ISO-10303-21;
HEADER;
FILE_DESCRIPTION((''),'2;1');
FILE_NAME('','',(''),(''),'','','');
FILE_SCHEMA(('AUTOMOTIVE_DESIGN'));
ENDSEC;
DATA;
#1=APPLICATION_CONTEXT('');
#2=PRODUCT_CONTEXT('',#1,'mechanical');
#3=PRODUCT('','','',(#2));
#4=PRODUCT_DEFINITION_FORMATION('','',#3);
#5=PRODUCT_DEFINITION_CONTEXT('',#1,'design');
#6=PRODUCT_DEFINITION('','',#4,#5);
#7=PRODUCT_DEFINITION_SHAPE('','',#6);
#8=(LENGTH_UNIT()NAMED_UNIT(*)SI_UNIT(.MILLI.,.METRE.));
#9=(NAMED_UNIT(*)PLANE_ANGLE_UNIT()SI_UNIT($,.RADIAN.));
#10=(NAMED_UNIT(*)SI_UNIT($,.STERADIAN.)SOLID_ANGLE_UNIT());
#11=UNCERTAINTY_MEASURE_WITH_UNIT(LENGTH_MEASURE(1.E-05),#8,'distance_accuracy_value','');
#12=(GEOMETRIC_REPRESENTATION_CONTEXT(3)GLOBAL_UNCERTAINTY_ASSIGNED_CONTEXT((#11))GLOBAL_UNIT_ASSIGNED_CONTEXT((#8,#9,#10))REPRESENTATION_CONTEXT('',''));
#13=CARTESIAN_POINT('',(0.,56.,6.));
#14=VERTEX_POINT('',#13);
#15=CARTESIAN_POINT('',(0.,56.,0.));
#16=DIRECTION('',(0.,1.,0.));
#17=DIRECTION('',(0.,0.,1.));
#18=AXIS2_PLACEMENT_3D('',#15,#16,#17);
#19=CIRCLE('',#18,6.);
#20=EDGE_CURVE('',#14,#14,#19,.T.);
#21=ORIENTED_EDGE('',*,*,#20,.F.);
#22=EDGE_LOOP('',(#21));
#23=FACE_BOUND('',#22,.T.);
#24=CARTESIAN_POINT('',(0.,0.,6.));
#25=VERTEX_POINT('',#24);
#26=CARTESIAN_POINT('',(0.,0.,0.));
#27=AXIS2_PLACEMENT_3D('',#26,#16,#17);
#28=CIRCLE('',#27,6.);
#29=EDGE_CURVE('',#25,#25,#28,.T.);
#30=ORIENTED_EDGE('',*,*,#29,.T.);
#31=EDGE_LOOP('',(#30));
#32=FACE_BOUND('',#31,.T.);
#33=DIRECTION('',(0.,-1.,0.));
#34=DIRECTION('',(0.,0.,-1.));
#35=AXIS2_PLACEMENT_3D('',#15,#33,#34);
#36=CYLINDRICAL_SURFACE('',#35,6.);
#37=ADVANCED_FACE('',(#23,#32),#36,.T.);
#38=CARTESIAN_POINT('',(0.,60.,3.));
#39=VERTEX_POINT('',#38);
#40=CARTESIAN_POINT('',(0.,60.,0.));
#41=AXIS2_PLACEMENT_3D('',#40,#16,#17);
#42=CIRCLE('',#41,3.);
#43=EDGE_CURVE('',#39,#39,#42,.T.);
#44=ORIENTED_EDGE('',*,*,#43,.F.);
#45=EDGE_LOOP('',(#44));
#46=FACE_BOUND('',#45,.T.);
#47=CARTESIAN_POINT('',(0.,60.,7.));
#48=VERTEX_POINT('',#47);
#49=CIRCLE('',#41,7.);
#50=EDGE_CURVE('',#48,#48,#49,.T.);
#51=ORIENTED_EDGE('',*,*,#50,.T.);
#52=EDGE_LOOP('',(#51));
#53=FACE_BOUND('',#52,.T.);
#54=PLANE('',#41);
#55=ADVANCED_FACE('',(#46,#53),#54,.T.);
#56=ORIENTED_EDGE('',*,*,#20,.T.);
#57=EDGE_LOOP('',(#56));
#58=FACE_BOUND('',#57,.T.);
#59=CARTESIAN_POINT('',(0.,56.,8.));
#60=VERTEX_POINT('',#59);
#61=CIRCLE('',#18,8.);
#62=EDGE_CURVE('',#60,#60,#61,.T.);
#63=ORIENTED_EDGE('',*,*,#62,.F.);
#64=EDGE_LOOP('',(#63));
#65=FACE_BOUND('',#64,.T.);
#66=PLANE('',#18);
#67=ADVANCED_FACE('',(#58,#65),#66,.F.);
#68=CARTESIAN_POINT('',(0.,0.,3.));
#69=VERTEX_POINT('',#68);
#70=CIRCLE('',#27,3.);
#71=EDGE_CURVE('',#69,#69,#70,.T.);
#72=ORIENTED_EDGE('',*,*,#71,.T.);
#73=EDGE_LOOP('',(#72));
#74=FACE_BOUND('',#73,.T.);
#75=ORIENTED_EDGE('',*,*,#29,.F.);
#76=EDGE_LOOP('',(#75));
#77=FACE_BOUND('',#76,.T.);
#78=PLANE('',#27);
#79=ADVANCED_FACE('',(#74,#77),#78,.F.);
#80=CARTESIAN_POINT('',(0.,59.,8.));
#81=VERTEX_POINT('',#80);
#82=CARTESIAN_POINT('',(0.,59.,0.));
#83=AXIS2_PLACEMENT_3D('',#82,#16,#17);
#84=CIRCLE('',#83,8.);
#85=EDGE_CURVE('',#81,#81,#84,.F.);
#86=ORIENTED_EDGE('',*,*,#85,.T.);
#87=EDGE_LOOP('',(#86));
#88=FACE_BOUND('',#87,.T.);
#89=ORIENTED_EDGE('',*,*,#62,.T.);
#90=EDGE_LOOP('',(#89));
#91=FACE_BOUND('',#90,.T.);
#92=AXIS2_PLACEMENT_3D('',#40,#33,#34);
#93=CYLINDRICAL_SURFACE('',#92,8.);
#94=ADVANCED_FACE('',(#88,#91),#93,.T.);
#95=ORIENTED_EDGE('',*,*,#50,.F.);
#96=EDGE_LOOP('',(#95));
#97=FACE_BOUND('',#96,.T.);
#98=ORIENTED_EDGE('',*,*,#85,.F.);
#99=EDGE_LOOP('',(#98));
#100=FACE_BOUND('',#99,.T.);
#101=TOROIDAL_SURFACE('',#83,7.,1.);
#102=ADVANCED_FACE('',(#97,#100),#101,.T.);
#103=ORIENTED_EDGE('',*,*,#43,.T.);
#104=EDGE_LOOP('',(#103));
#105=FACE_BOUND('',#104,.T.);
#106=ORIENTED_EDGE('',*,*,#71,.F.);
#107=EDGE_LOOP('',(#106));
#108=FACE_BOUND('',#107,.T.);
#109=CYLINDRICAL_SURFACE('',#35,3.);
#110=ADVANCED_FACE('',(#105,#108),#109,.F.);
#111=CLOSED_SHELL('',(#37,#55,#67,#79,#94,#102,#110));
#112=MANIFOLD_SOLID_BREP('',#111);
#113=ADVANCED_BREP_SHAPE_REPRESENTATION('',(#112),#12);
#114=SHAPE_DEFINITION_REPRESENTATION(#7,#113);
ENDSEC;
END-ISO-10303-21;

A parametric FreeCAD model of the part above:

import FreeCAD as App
import Part
import Sketcher
from FreeCAD import Vector
Q = App.Units.Quantity


def edges_at(feature, points):
    """Names of the edges that pass closest to the given points."""
    edges = feature.Shape.Edges
    near = lambda p: min(range(len(edges)), key=lambda i: edges[i].distToShape(Part.Vertex(*p))[0])
    return sorted({f"Edge{near(p) + 1}" for p in points})

doc = App.newDocument("Part")
body = doc.addObject("PartDesign::Body", "Body")

sketch1 = body.newObject("Sketcher::SketchObject", "Sketch")
sketch1.AttachmentSupport = (doc.getObject("XZ_Plane"), [""])
sketch1.MapMode = "FlatFace"
sketch1.addGeometry(Part.Circle(Vector(0, 0, 0), Vector(0, 0, 1), 6), False)
sketch1.addGeometry(Part.Circle(Vector(0, 0, 0), Vector(0, 0, 1), 3), False)
sketch1.addConstraint(Sketcher.Constraint("Coincident", 0, 3, -1, 1))
sketch1.addConstraint(Sketcher.Constraint("Coincident", 1, 3, -1, 1))
sketch1.addConstraint(Sketcher.Constraint("Diameter", 0, Q("12 mm")))
sketch1.addConstraint(Sketcher.Constraint("Diameter", 1, Q("6 mm")))
pad1 = body.newObject("PartDesign::Pad", "Pad")
pad1.Profile = sketch1
pad1.Length = 56
pad1.Reversed = True

sketch2 = body.newObject("Sketcher::SketchObject", "Sketch001")
sketch2.AttachmentSupport = (doc.getObject("XZ_Plane"), [""])
sketch2.MapMode = "FlatFace"
sketch2.AttachmentOffset = App.Placement(Vector(0, 0, -56), App.Rotation())
sketch2.addGeometry(Part.Circle(Vector(0, 0, 0), Vector(0, 0, 1), 8), False)
sketch2.addGeometry(Part.Circle(Vector(0, 0, 0), Vector(0, 0, 1), 3), False)
sketch2.addConstraint(Sketcher.Constraint("Coincident", 0, 3, -1, 1))
sketch2.addConstraint(Sketcher.Constraint("Coincident", 1, 3, -1, 1))
sketch2.addConstraint(Sketcher.Constraint("Diameter", 0, Q("16 mm")))
sketch2.addConstraint(Sketcher.Constraint("Diameter", 1, Q("6 mm")))
pad2 = body.newObject("PartDesign::Pad", "Pad001")
pad2.Profile = sketch2
pad2.Length = 4
pad2.Reversed = True
doc.recompute()

fillet = body.newObject("PartDesign::Fillet", "Fillet")
fillet.Base = (pad2, edges_at(pad2, [(-8, 60, 0)]))
fillet.Radius = 1

doc.recompute()
